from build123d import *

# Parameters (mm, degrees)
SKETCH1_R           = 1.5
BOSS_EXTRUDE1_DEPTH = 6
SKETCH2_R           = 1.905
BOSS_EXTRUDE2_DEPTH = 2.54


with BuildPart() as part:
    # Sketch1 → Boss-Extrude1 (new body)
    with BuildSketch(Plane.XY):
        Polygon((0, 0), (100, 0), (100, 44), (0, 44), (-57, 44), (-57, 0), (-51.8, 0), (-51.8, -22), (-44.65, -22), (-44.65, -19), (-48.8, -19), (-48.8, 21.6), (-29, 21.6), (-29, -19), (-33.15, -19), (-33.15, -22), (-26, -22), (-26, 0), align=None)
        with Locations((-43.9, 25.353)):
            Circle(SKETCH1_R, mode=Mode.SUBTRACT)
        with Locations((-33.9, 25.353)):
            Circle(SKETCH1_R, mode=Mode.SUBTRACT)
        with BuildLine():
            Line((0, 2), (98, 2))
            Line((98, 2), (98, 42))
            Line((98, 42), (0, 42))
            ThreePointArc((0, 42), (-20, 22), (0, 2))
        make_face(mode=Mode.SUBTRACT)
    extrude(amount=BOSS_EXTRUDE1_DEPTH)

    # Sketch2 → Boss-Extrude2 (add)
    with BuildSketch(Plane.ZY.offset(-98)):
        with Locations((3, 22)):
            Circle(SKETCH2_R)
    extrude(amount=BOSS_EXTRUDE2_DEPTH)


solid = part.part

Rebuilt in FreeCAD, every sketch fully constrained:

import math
import FreeCAD as App
import Part
import Sketcher
from FreeCAD import Vector
Q = App.Units.Quantity


def add_polygon(sketch, points):
    """Adds a closed chain of lines whose ends are joined by coincident constraints."""
    first, n = sketch.GeometryCount, len(points)
    for a, b in zip(points, points[1:] + points[:1]):
        sketch.addGeometry(Part.LineSegment(App.Vector(*a, 0), App.Vector(*b, 0)), False)
    for i in range(n):
        sketch.addConstraint(Sketcher.Constraint("Coincident", first + i, 2, first + (i + 1) % n, 1))

doc = App.newDocument("Part")
body = doc.addObject("PartDesign::Body", "Body")

# Sketch on XY plane
sketch1 = body.newObject("Sketcher::SketchObject", "Sketch")
sketch1.AttachmentSupport = (doc.getObject("XY_Plane"), [""])
sketch1.MapMode = "FlatFace"
add_polygon(sketch1, [(100, 0), (100, 44), (-57, 44), (-57, 0), (-51.8, 0), (-51.8, -22), (-44.6, -22), (-44.6, -19), (-48.8, -19), (-48.8, 21.6), (-29, 21.6), (-29, -19), (-33.1, -19), (-33.1, -22), (-26, -22), (-26, 0)])  # lines 0-15
sketch1.addGeometry(Part.Circle(Vector(-43.9, 25.4, 0), Vector(0, 0, 1), 1.5), False)  # 16
sketch1.addGeometry(Part.Circle(Vector(-33.9, 25.4, 0), Vector(0, 0, 1), 1.5), False)  # 17
sketch1.addGeometry(Part.LineSegment(Vector(98, 2, 0), Vector(0, 2, 0)), False)  # 18
sketch1.addGeometry(Part.ArcOfCircle(Part.Circle(Vector(0, 22, 0), Vector(0, 0, 1), 20), math.radians(90), math.radians(270)), False)  # 19
sketch1.addGeometry(Part.LineSegment(Vector(0, 42, 0), Vector(98, 42, 0)), False)  # 20
sketch1.addGeometry(Part.LineSegment(Vector(98, 42, 0), Vector(98, 2, 0)), False)  # 21
sketch1.addConstraint(Sketcher.Constraint("Tangent", 18, 2, 19, 2))
sketch1.addConstraint(Sketcher.Constraint("Tangent", 19, 1, 20, 1))
sketch1.addConstraint(Sketcher.Constraint("Coincident", 20, 2, 21, 1))
sketch1.addConstraint(Sketcher.Constraint("Coincident", 21, 2, 18, 1))
sketch1.addConstraint(Sketcher.Constraint("Vertical", 0))
sketch1.addConstraint(Sketcher.Constraint("Horizontal", 1))
sketch1.addConstraint(Sketcher.Constraint("Vertical", 2))
sketch1.addConstraint(Sketcher.Constraint("Horizontal", 3))
sketch1.addConstraint(Sketcher.Constraint("Vertical", 4))
sketch1.addConstraint(Sketcher.Constraint("Horizontal", 5))
sketch1.addConstraint(Sketcher.Constraint("Vertical", 6))
sketch1.addConstraint(Sketcher.Constraint("Horizontal", 7))
sketch1.addConstraint(Sketcher.Constraint("Vertical", 8))
sketch1.addConstraint(Sketcher.Constraint("Horizontal", 9))
sketch1.addConstraint(Sketcher.Constraint("Vertical", 10))
sketch1.addConstraint(Sketcher.Constraint("Horizontal", 11))
sketch1.addConstraint(Sketcher.Constraint("Vertical", 12))
sketch1.addConstraint(Sketcher.Constraint("Horizontal", 13))
sketch1.addConstraint(Sketcher.Constraint("Vertical", 14))
sketch1.addConstraint(Sketcher.Constraint("Horizontal", 15))
sketch1.addConstraint(Sketcher.Constraint("Horizontal", 18))
sketch1.addConstraint(Sketcher.Constraint("Horizontal", 20))
sketch1.addConstraint(Sketcher.Constraint("Vertical", 21))
sketch1.addConstraint(Sketcher.Constraint("Equal", 16, 17))
sketch1.addConstraint(Sketcher.Constraint("PointOnObject", 19, 3, -2))
sketch1.addConstraint(Sketcher.Constraint("PointOnObject", 2, 2, -1))
sketch1.addConstraint(Sketcher.Constraint("PointOnObject", 14, 2, -1))
sketch1.addConstraint(Sketcher.Constraint("Horizontal", 16, 3, 17, 3))
sketch1.addConstraint(Sketcher.Constraint("Horizontal", 7, 2, 10, 2))
sketch1.addConstraint(Sketcher.Constraint("Horizontal", 5, 2, 12, 2))
sketch1.addConstraint(Sketcher.Constraint("Equal", 7, 11))
sketch1.addConstraint(Sketcher.Constraint("Equal", 5, 13))
sketch1.addConstraint(Sketcher.Constraint("Diameter", 16, Q("3 mm")))
sketch1.addConstraint(Sketcher.Constraint("Radius", 19, Q("20 mm")))
sketch1.addConstraint(Sketcher.Constraint("DistanceX", 1, 2, 1, 1, Q("157 mm")))
sketch1.addConstraint(Sketcher.Constraint("DistanceX", 15, 1, 15, 2, Q("126 mm")))
sketch1.addConstraint(Sketcher.Constraint("DistanceX", 18, 2, 18, 1, Q("98 mm")))
sketch1.addConstraint(Sketcher.Constraint("DistanceY", 0, 1, 0, 2, Q("44 mm")))
sketch1.addConstraint(Sketcher.Constraint("DistanceY", 4, 2, 4, 1, Q("22 mm")))
sketch1.addConstraint(Sketcher.Constraint("DistanceY", 6, 1, 6, 2, Q("3 mm")))
sketch1.addConstraint(Sketcher.Constraint("DistanceX", 3, 1, 3, 2, Q("5.2 mm")))
sketch1.addConstraint(Sketcher.Constraint("DistanceX", 9, 1, 9, 2, Q("19.8 mm")))
sketch1.addConstraint(Sketcher.Constraint("DistanceY", 8, 1, 8, 2, Q("40.6 mm")))
sketch1.addConstraint(Sketcher.Constraint("DistanceY", -1, 1, 19, 3, Q("22 mm")))
sketch1.addConstraint(Sketcher.Constraint("DistanceX", -1, 1, 0, 2, Q("100 mm")))
sketch1.addConstraint(Sketcher.Constraint("DistanceX", 16, 3, 17, 3, Q("10 mm")))
sketch1.addConstraint(Sketcher.Constraint("DistanceX", 5, 1, 5, 2, Q("7.15 mm")))
sketch1.addConstraint(Sketcher.Constraint("DistanceX", 16, 3, -1, 1, Q("43.9 mm")))
sketch1.addConstraint(Sketcher.Constraint("DistanceY", -1, 1, 16, 3, Q("25.353 mm")))
pad1 = body.newObject("PartDesign::Pad", "Pad")
pad1.Profile = sketch1
pad1.Length = 6

# Sketch on YZ plane
sketch2 = body.newObject("Sketcher::SketchObject", "Sketch001")
sketch2.AttachmentSupport = (doc.getObject("YZ_Plane"), [""])
sketch2.MapMode = "FlatFace"
sketch2.AttachmentOffset = App.Placement(Vector(0, 0, 98), App.Rotation())
sketch2.addGeometry(Part.Circle(Vector(22, 3, 0), Vector(0, 0, 1), 1.9), False)
sketch2.addConstraint(Sketcher.Constraint("Diameter", 0, Q("3.81 mm")))
sketch2.addConstraint(Sketcher.Constraint("DistanceX", -1, 1, 0, 3, Q("22 mm")))
sketch2.addConstraint(Sketcher.Constraint("DistanceY", -1, 1, 0, 3, Q("3 mm")))
pad2 = body.newObject("PartDesign::Pad", "Pad001")
pad2.Profile = sketch2
pad2.Length = 2.54
pad2.Reversed = True

doc.recompute()
